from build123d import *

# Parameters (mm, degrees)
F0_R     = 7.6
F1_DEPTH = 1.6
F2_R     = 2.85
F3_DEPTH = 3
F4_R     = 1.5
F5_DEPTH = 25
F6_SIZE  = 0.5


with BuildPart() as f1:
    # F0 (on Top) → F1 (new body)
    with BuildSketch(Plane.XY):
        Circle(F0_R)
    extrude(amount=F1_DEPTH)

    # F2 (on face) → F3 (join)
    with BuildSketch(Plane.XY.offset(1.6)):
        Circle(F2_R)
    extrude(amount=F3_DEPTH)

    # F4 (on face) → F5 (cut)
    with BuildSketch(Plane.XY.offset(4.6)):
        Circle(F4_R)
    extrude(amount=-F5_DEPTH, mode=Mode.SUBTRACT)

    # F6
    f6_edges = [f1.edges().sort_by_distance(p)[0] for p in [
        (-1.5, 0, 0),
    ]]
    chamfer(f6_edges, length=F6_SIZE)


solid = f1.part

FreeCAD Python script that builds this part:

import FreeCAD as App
import Part
import Sketcher


def edges_at(feature, points):
    """Names of the edges that pass closest to the given points."""
    edges = feature.Shape.Edges
    near = lambda p: min(range(len(edges)), key=lambda i: edges[i].distToShape(Part.Vertex(*p))[0])
    return sorted({f"Edge{near(p) + 1}" for p in points})

doc = App.newDocument("Part")
body = doc.addObject("PartDesign::Body", "Body")

sketch1 = body.newObject("Sketcher::SketchObject", "Sketch")
sketch1.AttachmentSupport = (doc.getObject("XY_Plane"), [""])
sketch1.MapMode = "FlatFace"
sketch1.addGeometry(Part.Circle(App.Vector(0, 0, 0), App.Vector(0, 0, 1), 8), False)
sketch1.addConstraint([
    Sketcher.Constraint("Coincident", 0, 3, -1, 1),
    Sketcher.Constraint("Diameter", 0, 15.2),
])
pad1 = body.newObject("PartDesign::Pad", "Pad")
pad1.Profile = sketch1
pad1.Length = 1.6

sketch2 = body.newObject("Sketcher::SketchObject", "Sketch001")
sketch2.AttachmentSupport = (doc.getObject("XY_Plane"), [""])
sketch2.MapMode = "FlatFace"
sketch2.AttachmentOffset = App.Placement(App.Vector(0, 0, 1.6), App.Rotation())
sketch2.addGeometry(Part.Circle(App.Vector(0, 0, 0), App.Vector(0, 0, 1), 2.9), False)
sketch2.addConstraint([
    Sketcher.Constraint("Coincident", 0, 3, -1, 1),
    Sketcher.Constraint("Diameter", 0, 5.7),
])
pad2 = body.newObject("PartDesign::Pad", "Pad001")
pad2.Profile = sketch2
pad2.Length = 3

sketch3 = body.newObject("Sketcher::SketchObject", "Sketch002")
sketch3.AttachmentSupport = (doc.getObject("XY_Plane"), [""])
sketch3.MapMode = "FlatFace"
sketch3.AttachmentOffset = App.Placement(App.Vector(0, 0, 4.6), App.Rotation())
sketch3.addGeometry(Part.Circle(App.Vector(0, 0, 0), App.Vector(0, 0, 1), 1.5), False)
sketch3.addConstraint([
    Sketcher.Constraint("Coincident", 0, 3, -1, 1),
    Sketcher.Constraint("Diameter", 0, 3.0),
])
pocket1 = body.newObject("PartDesign::Pocket", "Pocket")
pocket1.Profile = sketch3
pocket1.Length = 25
doc.recompute()

chamfer = body.newObject("PartDesign::Chamfer", "Chamfer")
chamfer.Base = (pocket1, edges_at(pocket1, [(-1.5, 0, 0)]))
chamfer.Size = 0.5

doc.recompute()
